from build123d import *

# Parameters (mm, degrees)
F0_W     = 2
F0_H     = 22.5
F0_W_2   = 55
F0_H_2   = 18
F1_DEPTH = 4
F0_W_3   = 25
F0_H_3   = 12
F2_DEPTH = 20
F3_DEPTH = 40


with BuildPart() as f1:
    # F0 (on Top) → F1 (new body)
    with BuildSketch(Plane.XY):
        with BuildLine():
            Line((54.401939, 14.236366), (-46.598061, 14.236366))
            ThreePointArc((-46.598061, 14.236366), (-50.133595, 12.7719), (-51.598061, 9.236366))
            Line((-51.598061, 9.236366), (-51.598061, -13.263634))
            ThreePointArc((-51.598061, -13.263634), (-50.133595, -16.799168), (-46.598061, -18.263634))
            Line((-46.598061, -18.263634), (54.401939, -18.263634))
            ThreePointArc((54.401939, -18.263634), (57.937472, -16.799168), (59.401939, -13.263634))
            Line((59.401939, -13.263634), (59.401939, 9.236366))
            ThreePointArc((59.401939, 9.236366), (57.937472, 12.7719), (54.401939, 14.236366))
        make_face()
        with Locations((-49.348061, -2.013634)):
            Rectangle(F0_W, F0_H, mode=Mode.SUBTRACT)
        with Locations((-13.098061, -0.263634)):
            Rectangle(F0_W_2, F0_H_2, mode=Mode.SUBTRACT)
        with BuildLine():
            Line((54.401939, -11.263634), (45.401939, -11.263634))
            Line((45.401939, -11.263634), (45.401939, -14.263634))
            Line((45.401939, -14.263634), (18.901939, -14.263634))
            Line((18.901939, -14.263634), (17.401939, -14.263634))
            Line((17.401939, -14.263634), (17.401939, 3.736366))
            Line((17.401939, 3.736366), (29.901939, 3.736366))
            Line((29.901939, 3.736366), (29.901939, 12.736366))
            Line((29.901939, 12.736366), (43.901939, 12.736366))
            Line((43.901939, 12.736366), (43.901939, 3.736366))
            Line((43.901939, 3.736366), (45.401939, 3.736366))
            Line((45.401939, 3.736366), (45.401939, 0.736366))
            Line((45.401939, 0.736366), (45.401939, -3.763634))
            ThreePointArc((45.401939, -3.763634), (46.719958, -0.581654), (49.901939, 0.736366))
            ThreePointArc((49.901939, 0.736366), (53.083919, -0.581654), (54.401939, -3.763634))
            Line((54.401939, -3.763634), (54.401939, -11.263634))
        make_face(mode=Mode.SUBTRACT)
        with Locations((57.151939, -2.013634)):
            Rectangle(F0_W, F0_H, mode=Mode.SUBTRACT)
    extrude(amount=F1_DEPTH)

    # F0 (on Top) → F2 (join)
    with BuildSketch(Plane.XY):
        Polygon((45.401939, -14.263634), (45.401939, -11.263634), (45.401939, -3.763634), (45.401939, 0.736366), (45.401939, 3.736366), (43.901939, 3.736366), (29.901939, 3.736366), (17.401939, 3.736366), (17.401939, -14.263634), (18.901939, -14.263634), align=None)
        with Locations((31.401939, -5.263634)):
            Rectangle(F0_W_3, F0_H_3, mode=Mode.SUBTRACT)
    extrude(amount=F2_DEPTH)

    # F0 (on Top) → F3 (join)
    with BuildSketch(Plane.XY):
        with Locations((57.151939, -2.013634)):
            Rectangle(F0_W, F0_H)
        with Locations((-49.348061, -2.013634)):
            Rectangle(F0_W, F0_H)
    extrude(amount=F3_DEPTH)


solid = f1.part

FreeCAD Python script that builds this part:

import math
import FreeCAD as App
import Part
import Sketcher
Q = App.Units.Quantity


def add_polygon(sketch, points):
    """Adds a closed chain of lines whose ends are joined by coincident constraints."""
    first, n = sketch.GeometryCount, len(points)
    for a, b in zip(points, points[1:] + points[:1]):
        sketch.addGeometry(Part.LineSegment(App.Vector(*a, 0), App.Vector(*b, 0)), False)
    for i in range(n):
        sketch.addConstraint(Sketcher.Constraint("Coincident", first + i, 2, first + (i + 1) % n, 1))

doc = App.newDocument("Part")
body = doc.addObject("PartDesign::Body", "Body")

sketch1 = doc.addObject("Sketcher::SketchObject", "Sketch")
body.addObject(sketch1)
sketch1.AttachmentSupport = (doc.XY_Plane, [""])
sketch1.MapMode = "FlatFace"
sketch1.addGeometry(Part.LineSegment(App.Vector(54.4, 14.2, 0), App.Vector(-46.6, 14.2, 0)), False)
sketch1.addGeometry(Part.ArcOfCircle(Part.Circle(App.Vector(-46.6, 9.2, 0), App.Vector(0, 0, 1), 5), math.radians(90), math.radians(180)), False)
sketch1.addGeometry(Part.LineSegment(App.Vector(-51.6, 9.2, 0), App.Vector(-51.6, -13.3, 0)), False)
sketch1.addGeometry(Part.ArcOfCircle(Part.Circle(App.Vector(-46.6, -13.3, 0), App.Vector(0, 0, 1), 5), math.radians(180), math.radians(270)), False)
sketch1.addGeometry(Part.LineSegment(App.Vector(-46.6, -18.3, 0), App.Vector(54.4, -18.3, 0)), False)
sketch1.addGeometry(Part.ArcOfCircle(Part.Circle(App.Vector(54.4, -13.3, 0), App.Vector(0, 0, 1), 5), math.radians(-90), math.radians(0)), False)
sketch1.addGeometry(Part.LineSegment(App.Vector(59.4, -13.3, 0), App.Vector(59.4, 9.2, 0)), False)
sketch1.addGeometry(Part.ArcOfCircle(Part.Circle(App.Vector(54.4, 9.2, 0), App.Vector(0, 0, 1), 5), math.radians(0), math.radians(90)), False)
add_polygon(sketch1, [(-48.3, -13.3), (-50.3, -13.3), (-50.3, 9.2), (-48.3, 9.2)])
add_polygon(sketch1, [(58.2, -13.3), (56.2, -13.3), (56.2, 9.2), (58.2, 9.2)])
add_polygon(sketch1, [(14.4, -9.3), (-40.6, -9.3), (-40.6, 8.7), (14.4, 8.7)])
sketch1.addGeometry(Part.LineSegment(App.Vector(54.4, -3.8, 0), App.Vector(54.4, -11.3, 0)), False)
sketch1.addGeometry(Part.LineSegment(App.Vector(54.4, -11.3, 0), App.Vector(45.4, -11.3, 0)), False)
sketch1.addGeometry(Part.LineSegment(App.Vector(45.4, -11.3, 0), App.Vector(45.4, -14.3, 0)), False)
sketch1.addGeometry(Part.LineSegment(App.Vector(45.4, -14.3, 0), App.Vector(17.4, -14.3, 0)), False)
sketch1.addGeometry(Part.LineSegment(App.Vector(17.4, -14.3, 0), App.Vector(17.4, 3.7, 0)), False)
sketch1.addGeometry(Part.LineSegment(App.Vector(17.4, 3.7, 0), App.Vector(29.9, 3.7, 0)), False)
sketch1.addGeometry(Part.LineSegment(App.Vector(29.9, 3.7, 0), App.Vector(29.9, 12.7, 0)), False)
sketch1.addGeometry(Part.LineSegment(App.Vector(29.9, 12.7, 0), App.Vector(43.9, 12.7, 0)), False)
sketch1.addGeometry(Part.LineSegment(App.Vector(43.9, 12.7, 0), App.Vector(43.9, 3.7, 0)), False)
sketch1.addGeometry(Part.LineSegment(App.Vector(43.9, 3.7, 0), App.Vector(45.4, 3.7, 0)), False)
sketch1.addGeometry(Part.LineSegment(App.Vector(45.4, 3.7, 0), App.Vector(45.4, -3.8, 0)), False)
sketch1.addGeometry(Part.ArcOfCircle(Part.Circle(App.Vector(49.9, -3.8, 0), App.Vector(0, 0, 1), 4.5), math.radians(90), math.radians(180)), False)
sketch1.addGeometry(Part.ArcOfCircle(Part.Circle(App.Vector(49.9, -3.8, 0), App.Vector(0, 0, 1), 4.5), math.radians(0), math.radians(90)), False)
sketch1.addConstraint([
    Sketcher.Constraint("Tangent", 0, 2, 1, 1),
    Sketcher.Constraint("Tangent", 1, 2, 2, 1),
    Sketcher.Constraint("Tangent", 2, 2, 3, 1),
    Sketcher.Constraint("Tangent", 3, 2, 4, 1),
    Sketcher.Constraint("Tangent", 4, 2, 5, 1),
    Sketcher.Constraint("Tangent", 5, 2, 6, 1),
    Sketcher.Constraint("Tangent", 6, 2, 7, 1),
    Sketcher.Constraint("Tangent", 7, 2, 0, 1),
    Sketcher.Constraint("Coincident", 20, 2, 21, 1),
    Sketcher.Constraint("Coincident", 21, 2, 22, 1),
    Sketcher.Constraint("Coincident", 22, 2, 23, 1),
    Sketcher.Constraint("Coincident", 23, 2, 24, 1),
    Sketcher.Constraint("Coincident", 24, 2, 25, 1),
    Sketcher.Constraint("Coincident", 25, 2, 26, 1),
    Sketcher.Constraint("Coincident", 26, 2, 27, 1),
    Sketcher.Constraint("Coincident", 27, 2, 28, 1),
    Sketcher.Constraint("Coincident", 28, 2, 29, 1),
    Sketcher.Constraint("Coincident", 29, 2, 30, 1),
    Sketcher.Constraint("Tangent", 30, 2, 31, 2),
    Sketcher.Constraint("Tangent", 31, 1, 32, 2),
    Sketcher.Constraint("Tangent", 32, 1, 20, 1),
    Sketcher.Constraint("Horizontal", 0),
    Sketcher.Constraint("Vertical", 2),
    Sketcher.Constraint("Horizontal", 4),
    Sketcher.Constraint("Vertical", 6),
    Sketcher.Constraint("Horizontal", 8),
    Sketcher.Constraint("Vertical", 9),
    Sketcher.Constraint("Horizontal", 10),
    Sketcher.Constraint("Vertical", 11),
    Sketcher.Constraint("Horizontal", 12),
    Sketcher.Constraint("Vertical", 13),
    Sketcher.Constraint("Horizontal", 14),
    Sketcher.Constraint("Vertical", 15),
    Sketcher.Constraint("Horizontal", 16),
    Sketcher.Constraint("Vertical", 17),
    Sketcher.Constraint("Horizontal", 18),
    Sketcher.Constraint("Vertical", 19),
    Sketcher.Constraint("Vertical", 20),
    Sketcher.Constraint("Horizontal", 21),
    Sketcher.Constraint("Vertical", 22),
    Sketcher.Constraint("Horizontal", 23),
    Sketcher.Constraint("Vertical", 24),
    Sketcher.Constraint("Horizontal", 25),
    Sketcher.Constraint("Vertical", 26),
    Sketcher.Constraint("Horizontal", 27),
    Sketcher.Constraint("Vertical", 28),
    Sketcher.Constraint("Horizontal", 29),
    Sketcher.Constraint("Vertical", 30),
    Sketcher.Constraint("Equal", 1, 3),
    Sketcher.Constraint("Equal", 3, 5),
    Sketcher.Constraint("Equal", 5, 7),
    Sketcher.Constraint("Equal", 31, 32),
    Sketcher.Constraint("Horizontal", 5, 2, 8, 2),
    Sketcher.Constraint("Horizontal", 6, 2, 9, 2),
    Sketcher.Constraint("Horizontal", 11, 2, 12, 2),
    Sketcher.Constraint("Horizontal", 10, 2, 13, 2),
    Sketcher.Constraint("Horizontal", 25, 2, 28, 2),
    Sketcher.Constraint("Vertical", 7, 2, 20, 2),
    Sketcher.Constraint("Vertical", 22, 2, 29, 2),
    Sketcher.Constraint("Vertical", 32, 3, 31, 1),
    Sketcher.Constraint("Equal", 10, 12),
    Sketcher.Constraint("Equal", 19, 24),
    Sketcher.Constraint("Equal", 21, 26),
    Sketcher.Constraint("Equal", 20, 30),
    Sketcher.Constraint("Radius", 1, Q("5 mm")),
    Sketcher.Constraint("Radius", 31, Q("4.5 mm")),
    Sketcher.Constraint("DistanceX", 0, 2, 0, 1, Q("101 mm")),
    Sketcher.Constraint("DistanceX", 8, 2, 8, 1, Q("2 mm")),
    Sketcher.Constraint("DistanceX", 16, 2, 16, 1, Q("55 mm")),
    Sketcher.Constraint("DistanceX", 23, 2, 23, 1, Q("28 mm")),
    Sketcher.Constraint("DistanceX", 27, 1, 27, 2, Q("14 mm")),
    Sketcher.Constraint("DistanceY", 17, 1, 17, 2, Q("18 mm")),
    Sketcher.Constraint("DistanceY", 22, 2, 22, 1, Q("3 mm")),
    Sketcher.Constraint("DistanceX", 25, 1, 25, 2, Q("12.5 mm")),
    Sketcher.Constraint("DistanceY", 2, 2, 2, 1, Q("22.5 mm")),
    Sketcher.Constraint("DistanceY", 31, 3, 7, 3, Q("12.999999 mm")),
    Sketcher.Constraint("DistanceX", 3, 3, 16, 2, Q("6 mm")),
    Sketcher.Constraint("DistanceY", 3, 3, 16, 2, Q("4 mm")),
    Sketcher.Constraint("DistanceX", 2, 2, 8, 2, Q("1.25 mm")),
    Sketcher.Constraint("DistanceX", 5, 3, 12, 2, Q("1.750001 mm")),
    Sketcher.Constraint("DistanceX", 1, 3, -1, 1, Q("46.598061 mm")),
    Sketcher.Constraint("DistanceY", -1, 1, 1, 3, Q("9.236366 mm")),
])
pad1 = doc.addObject("PartDesign::Pad", "Pad")
body.addObject(pad1)
pad1.Profile = sketch1
pad1.Length = 4

sketch2 = doc.addObject("Sketcher::SketchObject", "Sketch001")
body.addObject(sketch2)
sketch2.AttachmentSupport = (doc.XY_Plane, [""])
sketch2.MapMode = "FlatFace"
add_polygon(sketch2, [(45, -14), (45, 4), (17, 4), (17, -14)])
add_polygon(sketch2, [(44, -11), (19, -11), (19, 1), (44, 1)])
sketch2.addConstraint([
    Sketcher.Constraint("Vertical", 0),
    Sketcher.Constraint("Horizontal", 1),
    Sketcher.Constraint("Vertical", 2),
    Sketcher.Constraint("Horizontal", 3),
    Sketcher.Constraint("Horizontal", 4),
    Sketcher.Constraint("Vertical", 5),
    Sketcher.Constraint("Horizontal", 6),
    Sketcher.Constraint("Vertical", 7),
    Sketcher.Constraint("DistanceX", 1, 2, 1, 1, Q("28 mm")),
    Sketcher.Constraint("DistanceX", 4, 2, 4, 1, Q("25 mm")),
    Sketcher.Constraint("DistanceY", 0, 1, 0, 2, Q("18 mm")),
    Sketcher.Constraint("DistanceY", 5, 1, 5, 2, Q("12 mm")),
    Sketcher.Constraint("DistanceY", 2, 2, 4, 2, Q("3 mm")),
    Sketcher.Constraint("DistanceX", 2, 2, 4, 2, Q("1.5 mm")),
    Sketcher.Constraint("DistanceX", -1, 1, 0, 2, Q("45.401939 mm")),
    Sketcher.Constraint("DistanceY", -1, 1, 0, 2, Q("3.736366 mm")),
])
pad2 = doc.addObject("PartDesign::Pad", "Pad001")
body.addObject(pad2)
pad2.Profile = sketch2
pad2.Length = 20

sketch3 = doc.addObject("Sketcher::SketchObject", "Sketch002")
body.addObject(sketch3)
sketch3.AttachmentSupport = (doc.XY_Plane, [""])
sketch3.MapMode = "FlatFace"
add_polygon(sketch3, [(56.2, 9.2), (56.2, -13.3), (58.2, -13.3), (58.2, 9.2)])
add_polygon(sketch3, [(-50.3, 9.2), (-50.3, -13.3), (-48.3, -13.3), (-48.3, 9.2)])
sketch3.addConstraint([
    Sketcher.Constraint("Vertical", 0),
    Sketcher.Constraint("Horizontal", 1),
    Sketcher.Constraint("Vertical", 2),
    Sketcher.Constraint("Horizontal", 3),
    Sketcher.Constraint("Vertical", 4),
    Sketcher.Constraint("Horizontal", 5),
    Sketcher.Constraint("Vertical", 6),
    Sketcher.Constraint("Horizontal", 7),
    Sketcher.Constraint("Horizontal", 1, 2, 4, 2),
    Sketcher.Constraint("Horizontal", 3, 2, 6, 2),
    Sketcher.Constraint("Equal", 3, 5),
    Sketcher.Constraint("DistanceX", 1, 1, 1, 2, Q("2 mm")),
    Sketcher.Constraint("DistanceY", 0, 2, 0, 1, Q("22.5 mm")),
    Sketcher.Constraint("DistanceX", 4, 2, 0, 2, Q("106.5 mm")),
    Sketcher.Constraint("DistanceX", -1, 1, 0, 2, Q("56.151939 mm")),
    Sketcher.Constraint("DistanceY", 0, 2, -1, 1, Q("13.263634 mm")),
])
pad3 = doc.addObject("PartDesign::Pad", "Pad002")
body.addObject(pad3)
pad3.Profile = sketch3
pad3.Length = 40

doc.recompute()
